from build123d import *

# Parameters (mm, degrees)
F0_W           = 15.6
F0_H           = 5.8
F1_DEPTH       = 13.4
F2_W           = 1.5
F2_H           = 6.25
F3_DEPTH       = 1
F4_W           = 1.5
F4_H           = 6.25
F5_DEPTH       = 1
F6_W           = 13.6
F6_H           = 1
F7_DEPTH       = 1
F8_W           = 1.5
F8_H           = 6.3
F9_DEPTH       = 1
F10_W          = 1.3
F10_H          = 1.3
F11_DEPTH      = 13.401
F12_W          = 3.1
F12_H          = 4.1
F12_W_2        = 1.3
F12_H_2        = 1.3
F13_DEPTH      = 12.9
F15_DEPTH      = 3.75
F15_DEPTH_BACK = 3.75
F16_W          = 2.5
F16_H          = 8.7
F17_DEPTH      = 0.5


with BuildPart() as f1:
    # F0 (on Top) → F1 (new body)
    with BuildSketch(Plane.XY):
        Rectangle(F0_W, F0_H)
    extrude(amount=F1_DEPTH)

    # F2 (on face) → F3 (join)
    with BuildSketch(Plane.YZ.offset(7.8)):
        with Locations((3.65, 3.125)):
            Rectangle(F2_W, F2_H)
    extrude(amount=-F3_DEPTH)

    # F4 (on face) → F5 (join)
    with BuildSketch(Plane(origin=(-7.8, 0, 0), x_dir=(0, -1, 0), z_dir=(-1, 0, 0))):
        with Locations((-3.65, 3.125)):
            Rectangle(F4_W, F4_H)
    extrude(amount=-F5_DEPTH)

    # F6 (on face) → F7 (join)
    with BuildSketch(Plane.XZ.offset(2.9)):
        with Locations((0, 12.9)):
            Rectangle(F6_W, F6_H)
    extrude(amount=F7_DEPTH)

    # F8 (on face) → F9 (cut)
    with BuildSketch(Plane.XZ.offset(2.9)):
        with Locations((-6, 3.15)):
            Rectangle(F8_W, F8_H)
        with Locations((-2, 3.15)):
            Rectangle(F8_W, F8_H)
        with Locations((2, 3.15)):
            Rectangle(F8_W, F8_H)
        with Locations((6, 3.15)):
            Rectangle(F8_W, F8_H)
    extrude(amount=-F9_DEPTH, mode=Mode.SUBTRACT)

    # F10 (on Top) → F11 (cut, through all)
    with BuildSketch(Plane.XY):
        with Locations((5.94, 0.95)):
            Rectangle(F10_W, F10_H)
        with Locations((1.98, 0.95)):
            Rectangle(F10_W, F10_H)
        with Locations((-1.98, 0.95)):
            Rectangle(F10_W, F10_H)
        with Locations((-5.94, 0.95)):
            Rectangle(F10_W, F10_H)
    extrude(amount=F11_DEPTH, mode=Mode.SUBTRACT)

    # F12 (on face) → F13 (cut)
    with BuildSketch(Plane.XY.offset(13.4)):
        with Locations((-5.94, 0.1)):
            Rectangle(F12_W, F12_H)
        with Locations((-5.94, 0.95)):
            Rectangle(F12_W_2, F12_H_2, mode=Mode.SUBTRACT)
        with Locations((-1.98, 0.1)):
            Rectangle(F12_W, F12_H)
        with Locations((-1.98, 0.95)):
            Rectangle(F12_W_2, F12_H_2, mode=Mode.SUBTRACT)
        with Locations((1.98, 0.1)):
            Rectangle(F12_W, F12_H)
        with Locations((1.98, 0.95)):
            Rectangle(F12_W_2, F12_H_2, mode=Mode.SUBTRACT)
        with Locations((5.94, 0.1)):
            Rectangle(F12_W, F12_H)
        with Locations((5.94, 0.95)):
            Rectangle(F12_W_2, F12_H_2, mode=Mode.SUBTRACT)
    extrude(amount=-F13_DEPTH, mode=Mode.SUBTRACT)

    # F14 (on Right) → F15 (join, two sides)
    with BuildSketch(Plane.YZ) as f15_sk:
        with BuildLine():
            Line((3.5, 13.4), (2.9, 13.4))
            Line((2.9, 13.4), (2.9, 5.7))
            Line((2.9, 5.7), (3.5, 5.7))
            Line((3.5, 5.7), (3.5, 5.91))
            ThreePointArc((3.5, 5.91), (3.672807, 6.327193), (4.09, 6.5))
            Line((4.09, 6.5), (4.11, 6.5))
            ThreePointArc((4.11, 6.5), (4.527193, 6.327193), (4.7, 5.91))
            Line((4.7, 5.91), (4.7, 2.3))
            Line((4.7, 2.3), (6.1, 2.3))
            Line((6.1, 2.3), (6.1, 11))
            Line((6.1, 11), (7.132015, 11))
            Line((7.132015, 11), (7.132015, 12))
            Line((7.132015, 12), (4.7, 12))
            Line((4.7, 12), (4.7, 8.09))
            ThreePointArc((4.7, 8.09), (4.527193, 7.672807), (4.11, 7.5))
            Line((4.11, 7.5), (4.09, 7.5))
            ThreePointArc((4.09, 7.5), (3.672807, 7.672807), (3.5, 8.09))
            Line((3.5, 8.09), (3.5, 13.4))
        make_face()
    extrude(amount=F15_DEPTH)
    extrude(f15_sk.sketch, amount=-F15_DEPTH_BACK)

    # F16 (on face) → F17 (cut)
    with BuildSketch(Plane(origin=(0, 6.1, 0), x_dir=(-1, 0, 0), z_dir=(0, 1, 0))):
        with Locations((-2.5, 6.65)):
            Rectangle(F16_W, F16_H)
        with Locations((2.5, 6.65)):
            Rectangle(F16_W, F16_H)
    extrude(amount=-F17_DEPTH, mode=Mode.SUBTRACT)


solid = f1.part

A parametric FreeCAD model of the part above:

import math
import FreeCAD as App
import Part
import Sketcher

V = App.Vector
Q = App.Units.Quantity

doc = App.newDocument("Part")
params = doc.addObject("Spreadsheet::Sheet", "Params")
for row, (alias, value) in enumerate([
    ("sketch1_width", "15.6 mm"),
    ("sketch1_height", "5.8 mm"),
    ("pad1_length", "13.4 mm"),
    ("sketch2_width", "1.5 mm"),
    ("sketch2_height", "6.25 mm"),
    ("pad2_length", "1 mm"),
    ("sketch3_width", "1.5 mm"),
    ("sketch3_height", "6.25 mm"),
    ("pad3_length", "1 mm"),
    ("sketch4_height", "1 mm"),
    ("sketch4_width", "13.6 mm"),
    ("pad4_length", "1 mm"),
    ("sketch5_width", "1.5 mm"),
    ("sketch5_height", "6.3 mm"),
    ("pocket1_length", "1 mm"),
    ("sketch6_width", "1.3 mm"),
    ("sketch7_width", "3.1 mm"),
    ("sketch7_width2", "1.3 mm"),
    ("sketch7_height", "4.1 mm"),
    ("pocket3_length", "12.9 mm"),
    ("sketch8_height", "1 mm"),
    ("sketch8_radius", "0.59 mm"),
    ("sketch8_width", "0.6 mm"),
    ("sketch8_width2", "1.4 mm"),
    ("sketch8_height2", "7.7 mm"),
    ("pad5_length", "3.75 mm"),
    ("pad5_length2", "3.75 mm"),
    ("sketch9_width", "2.5 mm"),
    ("sketch9_height", "8.7 mm"),
    ("pocket4_length", "0.5 mm"),
], start=1):
    params.set(f"A{row}", alias)
    params.set(f"B{row}", "=" + value)
    params.setAlias(f"B{row}", alias)

body = doc.addObject("PartDesign::Body", "Body")

# Sketch on XY plane
sketch1 = body.newObject("Sketcher::SketchObject", "Sketch")
sketch1.AttachmentSupport = (doc.getObject("XY_Plane"), [""])
sketch1.MapMode = "FlatFace"
sketch1.addGeometry(Part.LineSegment(V(-7.8, 2.9, 0), V(-7.8, -2.9, 0)), False)
sketch1.addGeometry(Part.LineSegment(V(-7.8, -2.9, 0), V(7.8, -2.9, 0)), False)
sketch1.addGeometry(Part.LineSegment(V(7.8, -2.9, 0), V(7.8, 2.9, 0)), False)
sketch1.addGeometry(Part.LineSegment(V(7.8, 2.9, 0), V(-7.8, 2.9, 0)), False)
sketch1.addConstraint(Sketcher.Constraint("Coincident", 0, 2, 1, 1))
sketch1.addConstraint(Sketcher.Constraint("Coincident", 1, 2, 2, 1))
sketch1.addConstraint(Sketcher.Constraint("Coincident", 2, 2, 3, 1))
sketch1.addConstraint(Sketcher.Constraint("Coincident", 3, 2, 0, 1))
sketch1.addConstraint(Sketcher.Constraint("Vertical", 0))
sketch1.addConstraint(Sketcher.Constraint("Horizontal", 1))
sketch1.addConstraint(Sketcher.Constraint("Vertical", 2))
sketch1.addConstraint(Sketcher.Constraint("Horizontal", 3))
sketch1.addConstraint(Sketcher.Constraint("Symmetric", 0, 2, 2, 2, -1, 1))
sketch1.addConstraint(Sketcher.Constraint("DistanceX", 1, 1, 1, 2, Q("15.6 mm")))
sketch1.addConstraint(Sketcher.Constraint("DistanceY", 0, 2, 0, 1, Q("5.8 mm")))
sketch1.setExpression("Constraints[9]", "Params.sketch1_width")
sketch1.setExpression("Constraints[10]", "Params.sketch1_height")
pad1 = body.newObject("PartDesign::Pad", "Pad")
pad1.Profile = sketch1
pad1.setExpression("Length", "Params.pad1_length")

# Sketch on YZ plane
sketch2 = body.newObject("Sketcher::SketchObject", "Sketch001")
sketch2.AttachmentSupport = (doc.getObject("YZ_Plane"), [""])
sketch2.MapMode = "FlatFace"
sketch2.AttachmentOffset = App.Placement(V(0, 0, 7.8), App.Rotation())
sketch2.addGeometry(Part.LineSegment(V(2.9, 6.25, 0), V(2.9, 0, 0)), False)
sketch2.addGeometry(Part.LineSegment(V(2.9, 0, 0), V(4.4, 0, 0)), False)
sketch2.addGeometry(Part.LineSegment(V(4.4, 0, 0), V(4.4, 6.25, 0)), False)
sketch2.addGeometry(Part.LineSegment(V(4.4, 6.25, 0), V(2.9, 6.25, 0)), False)
sketch2.addConstraint(Sketcher.Constraint("Coincident", 0, 2, 1, 1))
sketch2.addConstraint(Sketcher.Constraint("Coincident", 1, 2, 2, 1))
sketch2.addConstraint(Sketcher.Constraint("Coincident", 2, 2, 3, 1))
sketch2.addConstraint(Sketcher.Constraint("Coincident", 3, 2, 0, 1))
sketch2.addConstraint(Sketcher.Constraint("Vertical", 0))
sketch2.addConstraint(Sketcher.Constraint("Horizontal", 1))
sketch2.addConstraint(Sketcher.Constraint("Vertical", 2))
sketch2.addConstraint(Sketcher.Constraint("Horizontal", 3))
sketch2.addConstraint(Sketcher.Constraint("PointOnObject", 0, 2, -1))
sketch2.addConstraint(Sketcher.Constraint("DistanceX", 1, 1, 1, 2, Q("1.5 mm")))
sketch2.addConstraint(Sketcher.Constraint("DistanceY", 0, 2, 0, 1, Q("6.25 mm")))
sketch2.addConstraint(Sketcher.Constraint("DistanceX", -1, 1, 0, 2, Q("2.9 mm")))
sketch2.setExpression("Constraints[9]", "Params.sketch2_width")
sketch2.setExpression("Constraints[10]", "Params.sketch2_height")
pad2 = body.newObject("PartDesign::Pad", "Pad001")
pad2.Profile = sketch2
pad2.setExpression("Length", "Params.pad2_length")
pad2.Reversed = True

# Sketch on YZ plane
sketch3 = body.newObject("Sketcher::SketchObject", "Sketch002")
sketch3.AttachmentSupport = (doc.getObject("YZ_Plane"), [""])
sketch3.MapMode = "FlatFace"
sketch3.AttachmentOffset = App.Placement(V(0, 0, -7.8), App.Rotation())
sketch3.addGeometry(Part.LineSegment(V(4.4, 6.25, 0), V(4.4, 0, 0)), False)
sketch3.addGeometry(Part.LineSegment(V(4.4, 0, 0), V(2.9, 0, 0)), False)
sketch3.addGeometry(Part.LineSegment(V(2.9, 0, 0), V(2.9, 6.25, 0)), False)
sketch3.addGeometry(Part.LineSegment(V(2.9, 6.25, 0), V(4.4, 6.25, 0)), False)
sketch3.addConstraint(Sketcher.Constraint("Coincident", 0, 2, 1, 1))
sketch3.addConstraint(Sketcher.Constraint("Coincident", 1, 2, 2, 1))
sketch3.addConstraint(Sketcher.Constraint("Coincident", 2, 2, 3, 1))
sketch3.addConstraint(Sketcher.Constraint("Coincident", 3, 2, 0, 1))
sketch3.addConstraint(Sketcher.Constraint("Vertical", 0))
sketch3.addConstraint(Sketcher.Constraint("Horizontal", 1))
sketch3.addConstraint(Sketcher.Constraint("Vertical", 2))
sketch3.addConstraint(Sketcher.Constraint("Horizontal", 3))
sketch3.addConstraint(Sketcher.Constraint("PointOnObject", 0, 2, -1))
sketch3.addConstraint(Sketcher.Constraint("DistanceX", 1, 2, 1, 1, Q("1.5 mm")))
sketch3.addConstraint(Sketcher.Constraint("DistanceY", 0, 2, 0, 1, Q("6.25 mm")))
sketch3.addConstraint(Sketcher.Constraint("DistanceX", -1, 1, 0, 2, Q("4.4 mm")))
sketch3.setExpression("Constraints[9]", "Params.sketch3_width")
sketch3.setExpression("Constraints[10]", "Params.sketch3_height")
pad3 = body.newObject("PartDesign::Pad", "Pad002")
pad3.Profile = sketch3
pad3.setExpression("Length", "Params.pad3_length")

# Sketch on XZ plane
sketch4 = body.newObject("Sketcher::SketchObject", "Sketch003")
sketch4.AttachmentSupport = (doc.getObject("XZ_Plane"), [""])
sketch4.MapMode = "FlatFace"
sketch4.AttachmentOffset = App.Placement(V(0, 0, 2.9), App.Rotation())
sketch4.addGeometry(Part.LineSegment(V(-6.8, 13.4, 0), V(-6.8, 12.4, 0)), False)
sketch4.addGeometry(Part.LineSegment(V(-6.8, 12.4, 0), V(6.8, 12.4, 0)), False)
sketch4.addGeometry(Part.LineSegment(V(6.8, 12.4, 0), V(6.8, 13.4, 0)), False)
sketch4.addGeometry(Part.LineSegment(V(6.8, 13.4, 0), V(-6.8, 13.4, 0)), False)
sketch4.addConstraint(Sketcher.Constraint("Coincident", 0, 2, 1, 1))
sketch4.addConstraint(Sketcher.Constraint("Coincident", 1, 2, 2, 1))
sketch4.addConstraint(Sketcher.Constraint("Coincident", 2, 2, 3, 1))
sketch4.addConstraint(Sketcher.Constraint("Coincident", 3, 2, 0, 1))
sketch4.addConstraint(Sketcher.Constraint("Vertical", 0))
sketch4.addConstraint(Sketcher.Constraint("Horizontal", 1))
sketch4.addConstraint(Sketcher.Constraint("Vertical", 2))
sketch4.addConstraint(Sketcher.Constraint("Horizontal", 3))
sketch4.addConstraint(Sketcher.Constraint("DistanceY", 0, 2, 0, 1, Q("1 mm")))
sketch4.addConstraint(Sketcher.Constraint("DistanceX", 1, 1, 1, 2, Q("13.6 mm")))
sketch4.addConstraint(Sketcher.Constraint("DistanceX", 0, 2, -1, 1, Q("6.8 mm")))
sketch4.addConstraint(Sketcher.Constraint("DistanceY", -1, 1, 0, 2, Q("12.4 mm")))
sketch4.setExpression("Constraints[8]", "Params.sketch4_height")
sketch4.setExpression("Constraints[9]", "Params.sketch4_width")
pad4 = body.newObject("PartDesign::Pad", "Pad003")
pad4.Profile = sketch4
pad4.setExpression("Length", "Params.pad4_length")

# Sketch on XZ plane
sketch5 = body.newObject("Sketcher::SketchObject", "Sketch004")
sketch5.AttachmentSupport = (doc.getObject("XZ_Plane"), [""])
sketch5.MapMode = "FlatFace"
sketch5.AttachmentOffset = App.Placement(V(0, 0, 2.9), App.Rotation())
sketch5.addGeometry(Part.LineSegment(V(-6.75, 6.3, 0), V(-6.75, 0, 0)), False)
sketch5.addGeometry(Part.LineSegment(V(-6.75, 0, 0), V(-5.25, 0, 0)), False)
sketch5.addGeometry(Part.LineSegment(V(-5.25, 0, 0), V(-5.25, 6.3, 0)), False)
sketch5.addGeometry(Part.LineSegment(V(-5.25, 6.3, 0), V(-6.75, 6.3, 0)), False)
sketch5.addGeometry(Part.LineSegment(V(-2.75, 6.3, 0), V(-2.75, 0, 0)), False)
sketch5.addGeometry(Part.LineSegment(V(-2.75, 0, 0), V(-1.25, 0, 0)), False)
sketch5.addGeometry(Part.LineSegment(V(-1.25, 0, 0), V(-1.25, 6.3, 0)), False)
sketch5.addGeometry(Part.LineSegment(V(-1.25, 6.3, 0), V(-2.75, 6.3, 0)), False)
sketch5.addGeometry(Part.LineSegment(V(1.25, 6.3, 0), V(1.25, 0, 0)), False)
sketch5.addGeometry(Part.LineSegment(V(1.25, 0, 0), V(2.75, 0, 0)), False)
sketch5.addGeometry(Part.LineSegment(V(2.75, 0, 0), V(2.75, 6.3, 0)), False)
sketch5.addGeometry(Part.LineSegment(V(2.75, 6.3, 0), V(1.25, 6.3, 0)), False)
sketch5.addGeometry(Part.LineSegment(V(5.25, 6.3, 0), V(5.25, 0, 0)), False)
sketch5.addGeometry(Part.LineSegment(V(5.25, 0, 0), V(6.75, 0, 0)), False)
sketch5.addGeometry(Part.LineSegment(V(6.75, 0, 0), V(6.75, 6.3, 0)), False)
sketch5.addGeometry(Part.LineSegment(V(6.75, 6.3, 0), V(5.25, 6.3, 0)), False)
sketch5.addConstraint(Sketcher.Constraint("Coincident", 0, 2, 1, 1))
sketch5.addConstraint(Sketcher.Constraint("Coincident", 1, 2, 2, 1))
sketch5.addConstraint(Sketcher.Constraint("Coincident", 2, 2, 3, 1))
sketch5.addConstraint(Sketcher.Constraint("Coincident", 3, 2, 0, 1))
sketch5.addConstraint(Sketcher.Constraint("Coincident", 4, 2, 5, 1))
sketch5.addConstraint(Sketcher.Constraint("Coincident", 5, 2, 6, 1))
sketch5.addConstraint(Sketcher.Constraint("Coincident", 6, 2, 7, 1))
sketch5.addConstraint(Sketcher.Constraint("Coincident", 7, 2, 4, 1))
sketch5.addConstraint(Sketcher.Constraint("Coincident", 8, 2, 9, 1))
sketch5.addConstraint(Sketcher.Constraint("Coincident", 9, 2, 10, 1))
sketch5.addConstraint(Sketcher.Constraint("Coincident", 10, 2, 11, 1))
sketch5.addConstraint(Sketcher.Constraint("Coincident", 11, 2, 8, 1))
sketch5.addConstraint(Sketcher.Constraint("Coincident", 12, 2, 13, 1))
sketch5.addConstraint(Sketcher.Constraint("Coincident", 13, 2, 14, 1))
sketch5.addConstraint(Sketcher.Constraint("Coincident", 14, 2, 15, 1))
sketch5.addConstraint(Sketcher.Constraint("Coincident", 15, 2, 12, 1))
sketch5.addConstraint(Sketcher.Constraint("Vertical", 0))
sketch5.addConstraint(Sketcher.Constraint("Horizontal", 1))
sketch5.addConstraint(Sketcher.Constraint("Vertical", 2))
sketch5.addConstraint(Sketcher.Constraint("Horizontal", 3))
sketch5.addConstraint(Sketcher.Constraint("Vertical", 4))
sketch5.addConstraint(Sketcher.Constraint("Horizontal", 5))
sketch5.addConstraint(Sketcher.Constraint("Vertical", 6))
sketch5.addConstraint(Sketcher.Constraint("Horizontal", 7))
sketch5.addConstraint(Sketcher.Constraint("Vertical", 8))
sketch5.addConstraint(Sketcher.Constraint("Horizontal", 9))
sketch5.addConstraint(Sketcher.Constraint("Vertical", 10))
sketch5.addConstraint(Sketcher.Constraint("Horizontal", 11))
sketch5.addConstraint(Sketcher.Constraint("Vertical", 12))
sketch5.addConstraint(Sketcher.Constraint("Horizontal", 13))
sketch5.addConstraint(Sketcher.Constraint("Vertical", 14))
sketch5.addConstraint(Sketcher.Constraint("Horizontal", 15))
sketch5.addConstraint(Sketcher.Constraint("Symmetric", 5, 2, 8, 2, -1, 1))
sketch5.addConstraint(Sketcher.Constraint("Symmetric", 1, 2, 12, 2, -1, 1))
sketch5.addConstraint(Sketcher.Constraint("Symmetric", 4, 2, 9, 2, -2))
sketch5.addConstraint(Sketcher.Constraint("Symmetric", 0, 2, 13, 2, -2))
sketch5.addConstraint(Sketcher.Constraint("Horizontal", 3, 2, 6, 2))
sketch5.addConstraint(Sketcher.Constraint("Horizontal", 7, 2, 10, 2))
sketch5.addConstraint(Sketcher.Constraint("Horizontal", 11, 2, 14, 2))
sketch5.addConstraint(Sketcher.Constraint("Equal", 3, 5))
sketch5.addConstraint(Sketcher.Constraint("DistanceX", 1, 1, 1, 2, Q("1.5 mm")))
sketch5.addConstraint(Sketcher.Constraint("DistanceY", 0, 2, 0, 1, Q("6.3 mm")))
sketch5.addConstraint(Sketcher.Constraint("DistanceX", 0, 2, 4, 2, Q("4 mm")))
sketch5.addConstraint(Sketcher.Constraint("DistanceX", 4, 2, 8, 2, Q("4 mm")))
sketch5.setExpression("Constraints[40]", "Params.sketch5_width")
sketch5.setExpression("Constraints[41]", "Params.sketch5_height")
pocket1 = body.newObject("PartDesign::Pocket", "Pocket")
pocket1.Profile = sketch5
pocket1.setExpression("Length", "Params.pocket1_length")

# Sketch on XY plane
sketch6 = body.newObject("Sketcher::SketchObject", "Sketch005")
sketch6.AttachmentSupport = (doc.getObject("XY_Plane"), [""])
sketch6.MapMode = "FlatFace"
sketch6.addGeometry(Part.LineSegment(V(5.29, 1.6, 0), V(5.29, 0.3, 0)), False)
sketch6.addGeometry(Part.LineSegment(V(5.29, 0.3, 0), V(6.59, 0.3, 0)), False)
sketch6.addGeometry(Part.LineSegment(V(6.59, 0.3, 0), V(6.59, 1.6, 0)), False)
sketch6.addGeometry(Part.LineSegment(V(6.59, 1.6, 0), V(5.29, 1.6, 0)), False)
sketch6.addGeometry(Part.LineSegment(V(1.33, 1.6, 0), V(1.33, 0.3, 0)), False)
sketch6.addGeometry(Part.LineSegment(V(1.33, 0.3, 0), V(2.63, 0.3, 0)), False)
sketch6.addGeometry(Part.LineSegment(V(2.63, 0.3, 0), V(2.63, 1.6, 0)), False)
sketch6.addGeometry(Part.LineSegment(V(2.63, 1.6, 0), V(1.33, 1.6, 0)), False)
sketch6.addGeometry(Part.LineSegment(V(-2.63, 1.6, 0), V(-2.63, 0.3, 0)), False)
sketch6.addGeometry(Part.LineSegment(V(-2.63, 0.3, 0), V(-1.33, 0.3, 0)), False)
sketch6.addGeometry(Part.LineSegment(V(-1.33, 0.3, 0), V(-1.33, 1.6, 0)), False)
sketch6.addGeometry(Part.LineSegment(V(-1.33, 1.6, 0), V(-2.63, 1.6, 0)), False)
sketch6.addGeometry(Part.LineSegment(V(-6.59, 1.6, 0), V(-6.59, 0.3, 0)), False)
sketch6.addGeometry(Part.LineSegment(V(-6.59, 0.3, 0), V(-5.29, 0.3, 0)), False)
sketch6.addGeometry(Part.LineSegment(V(-5.29, 0.3, 0), V(-5.29, 1.6, 0)), False)
sketch6.addGeometry(Part.LineSegment(V(-5.29, 1.6, 0), V(-6.59, 1.6, 0)), False)
sketch6.addConstraint(Sketcher.Constraint("Coincident", 0, 2, 1, 1))
sketch6.addConstraint(Sketcher.Constraint("Coincident", 1, 2, 2, 1))
sketch6.addConstraint(Sketcher.Constraint("Coincident", 2, 2, 3, 1))
sketch6.addConstraint(Sketcher.Constraint("Coincident", 3, 2, 0, 1))
sketch6.addConstraint(Sketcher.Constraint("Coincident", 4, 2, 5, 1))
sketch6.addConstraint(Sketcher.Constraint("Coincident", 5, 2, 6, 1))
sketch6.addConstraint(Sketcher.Constraint("Coincident", 6, 2, 7, 1))
sketch6.addConstraint(Sketcher.Constraint("Coincident", 7, 2, 4, 1))
sketch6.addConstraint(Sketcher.Constraint("Coincident", 8, 2, 9, 1))
sketch6.addConstraint(Sketcher.Constraint("Coincident", 9, 2, 10, 1))
sketch6.addConstraint(Sketcher.Constraint("Coincident", 10, 2, 11, 1))
sketch6.addConstraint(Sketcher.Constraint("Coincident", 11, 2, 8, 1))
sketch6.addConstraint(Sketcher.Constraint("Coincident", 12, 2, 13, 1))
sketch6.addConstraint(Sketcher.Constraint("Coincident", 13, 2, 14, 1))
sketch6.addConstraint(Sketcher.Constraint("Coincident", 14, 2, 15, 1))
sketch6.addConstraint(Sketcher.Constraint("Coincident", 15, 2, 12, 1))
sketch6.addConstraint(Sketcher.Constraint("Vertical", 0))
sketch6.addConstraint(Sketcher.Constraint("Horizontal", 1))
sketch6.addConstraint(Sketcher.Constraint("Vertical", 2))
sketch6.addConstraint(Sketcher.Constraint("Horizontal", 3))
sketch6.addConstraint(Sketcher.Constraint("Vertical", 4))
sketch6.addConstraint(Sketcher.Constraint("Horizontal", 5))
sketch6.addConstraint(Sketcher.Constraint("Vertical", 6))
sketch6.addConstraint(Sketcher.Constraint("Horizontal", 7))
sketch6.addConstraint(Sketcher.Constraint("Vertical", 8))
sketch6.addConstraint(Sketcher.Constraint("Horizontal", 9))
sketch6.addConstraint(Sketcher.Constraint("Vertical", 10))
sketch6.addConstraint(Sketcher.Constraint("Horizontal", 11))
sketch6.addConstraint(Sketcher.Constraint("Vertical", 12))
sketch6.addConstraint(Sketcher.Constraint("Horizontal", 13))
sketch6.addConstraint(Sketcher.Constraint("Vertical", 14))
sketch6.addConstraint(Sketcher.Constraint("Horizontal", 15))
sketch6.addConstraint(Sketcher.Constraint("Symmetric", 5, 2, 8, 2, -2))
sketch6.addConstraint(Sketcher.Constraint("Symmetric", 7, 2, 10, 2, -2))
sketch6.addConstraint(Sketcher.Constraint("Symmetric", 1, 2, 12, 2, -2))
sketch6.addConstraint(Sketcher.Constraint("Symmetric", 3, 2, 14, 2, -2))
sketch6.addConstraint(Sketcher.Constraint("Horizontal", 1, 2, 4, 2))
sketch6.addConstraint(Sketcher.Constraint("Horizontal", 3, 2, 6, 2))
sketch6.addConstraint(Sketcher.Constraint("Equal", 3, 5))
sketch6.addConstraint(Sketcher.Constraint("Equal", 15, 0))
sketch6.addConstraint(Sketcher.Constraint("DistanceX", 1, 1, 1, 2, Q("1.3 mm")))
sketch6.addConstraint(Sketcher.Constraint("DistanceY", -1, 1, 0, 2, Q("0.3 mm")))
sketch6.addConstraint(Sketcher.Constraint("DistanceX", -1, 1, 0, 2, Q("5.29 mm")))
sketch6.addConstraint(Sketcher.Constraint("DistanceX", -1, 1, 4, 2, Q("1.33 mm")))
sketch6.setExpression("Constraints[40]", "Params.sketch6_width")
pocket2 = body.newObject("PartDesign::Pocket", "Pocket001")
pocket2.Profile = sketch6
pocket2.Type = "ThroughAll"
pocket2.Reversed = True

# Sketch on XY plane
sketch7 = body.newObject("Sketcher::SketchObject", "Sketch006")
sketch7.AttachmentSupport = (doc.getObject("XY_Plane"), [""])
sketch7.MapMode = "FlatFace"
sketch7.AttachmentOffset = App.Placement(V(0, 0, 13.4), App.Rotation())
sketch7.addGeometry(Part.LineSegment(V(-7.49, 2.15, 0), V(-7.49, -1.95, 0)), False)
sketch7.addGeometry(Part.LineSegment(V(-7.49, -1.95, 0), V(-4.39, -1.95, 0)), False)
sketch7.addGeometry(Part.LineSegment(V(-4.39, -1.95, 0), V(-4.39, 2.15, 0)), False)
sketch7.addGeometry(Part.LineSegment(V(-4.39, 2.15, 0), V(-7.49, 2.15, 0)), False)
sketch7.addGeometry(Part.LineSegment(V(-5.29, 0.3, 0), V(-6.59, 0.3, 0)), False)
sketch7.addGeometry(Part.LineSegment(V(-6.59, 0.3, 0), V(-6.59, 1.6, 0)), False)
sketch7.addGeometry(Part.LineSegment(V(-6.59, 1.6, 0), V(-5.29, 1.6, 0)), False)
sketch7.addGeometry(Part.LineSegment(V(-5.29, 1.6, 0), V(-5.29, 0.3, 0)), False)
sketch7.addGeometry(Part.LineSegment(V(-3.53, 2.15, 0), V(-3.53, -1.95, 0)), False)
sketch7.addGeometry(Part.LineSegment(V(-3.53, -1.95, 0), V(-0.43, -1.95, 0)), False)
sketch7.addGeometry(Part.LineSegment(V(-0.43, -1.95, 0), V(-0.43, 2.15, 0)), False)
sketch7.addGeometry(Part.LineSegment(V(-0.43, 2.15, 0), V(-3.53, 2.15, 0)), False)
sketch7.addGeometry(Part.LineSegment(V(-1.33, 0.3, 0), V(-2.63, 0.3, 0)), False)
sketch7.addGeometry(Part.LineSegment(V(-2.63, 0.3, 0), V(-2.63, 1.6, 0)), False)
sketch7.addGeometry(Part.LineSegment(V(-2.63, 1.6, 0), V(-1.33, 1.6, 0)), False)
sketch7.addGeometry(Part.LineSegment(V(-1.33, 1.6, 0), V(-1.33, 0.3, 0)), False)
sketch7.addGeometry(Part.LineSegment(V(0.43, 2.15, 0), V(0.43, -1.95, 0)), False)
sketch7.addGeometry(Part.LineSegment(V(0.43, -1.95, 0), V(3.53, -1.95, 0)), False)
sketch7.addGeometry(Part.LineSegment(V(3.53, -1.95, 0), V(3.53, 2.15, 0)), False)
sketch7.addGeometry(Part.LineSegment(V(3.53, 2.15, 0), V(0.43, 2.15, 0)), False)
sketch7.addGeometry(Part.LineSegment(V(2.63, 0.3, 0), V(1.33, 0.3, 0)), False)
sketch7.addGeometry(Part.LineSegment(V(1.33, 0.3, 0), V(1.33, 1.6, 0)), False)
sketch7.addGeometry(Part.LineSegment(V(1.33, 1.6, 0), V(2.63, 1.6, 0)), False)
sketch7.addGeometry(Part.LineSegment(V(2.63, 1.6, 0), V(2.63, 0.3, 0)), False)
sketch7.addGeometry(Part.LineSegment(V(4.39, 2.15, 0), V(4.39, -1.95, 0)), False)
sketch7.addGeometry(Part.LineSegment(V(4.39, -1.95, 0), V(7.49, -1.95, 0)), False)
sketch7.addGeometry(Part.LineSegment(V(7.49, -1.95, 0), V(7.49, 2.15, 0)), False)
sketch7.addGeometry(Part.LineSegment(V(7.49, 2.15, 0), V(4.39, 2.15, 0)), False)
sketch7.addGeometry(Part.LineSegment(V(6.59, 0.3, 0), V(5.29, 0.3, 0)), False)
sketch7.addGeometry(Part.LineSegment(V(5.29, 0.3, 0), V(5.29, 1.6, 0)), False)
sketch7.addGeometry(Part.LineSegment(V(5.29, 1.6, 0), V(6.59, 1.6, 0)), False)
sketch7.addGeometry(Part.LineSegment(V(6.59, 1.6, 0), V(6.59, 0.3, 0)), False)
sketch7.addConstraint(Sketcher.Constraint("Coincident", 0, 2, 1, 1))
sketch7.addConstraint(Sketcher.Constraint("Coincident", 1, 2, 2, 1))
sketch7.addConstraint(Sketcher.Constraint("Coincident", 2, 2, 3, 1))
sketch7.addConstraint(Sketcher.Constraint("Coincident", 3, 2, 0, 1))
sketch7.addConstraint(Sketcher.Constraint("Coincident", 4, 2, 5, 1))
sketch7.addConstraint(Sketcher.Constraint("Coincident", 5, 2, 6, 1))
sketch7.addConstraint(Sketcher.Constraint("Coincident", 6, 2, 7, 1))
sketch7.addConstraint(Sketcher.Constraint("Coincident", 7, 2, 4, 1))
sketch7.addConstraint(Sketcher.Constraint("Coincident", 8, 2, 9, 1))
sketch7.addConstraint(Sketcher.Constraint("Coincident", 9, 2, 10, 1))
sketch7.addConstraint(Sketcher.Constraint("Coincident", 10, 2, 11, 1))
sketch7.addConstraint(Sketcher.Constraint("Coincident", 11, 2, 8, 1))
sketch7.addConstraint(Sketcher.Constraint("Coincident", 12, 2, 13, 1))
sketch7.addConstraint(Sketcher.Constraint("Coincident", 13, 2, 14, 1))
sketch7.addConstraint(Sketcher.Constraint("Coincident", 14, 2, 15, 1))
sketch7.addConstraint(Sketcher.Constraint("Coincident", 15, 2, 12, 1))
sketch7.addConstraint(Sketcher.Constraint("Coincident", 16, 2, 17, 1))
sketch7.addConstraint(Sketcher.Constraint("Coincident", 17, 2, 18, 1))
sketch7.addConstraint(Sketcher.Constraint("Coincident", 18, 2, 19, 1))
sketch7.addConstraint(Sketcher.Constraint("Coincident", 19, 2, 16, 1))
sketch7.addConstraint(Sketcher.Constraint("Coincident", 20, 2, 21, 1))
sketch7.addConstraint(Sketcher.Constraint("Coincident", 21, 2, 22, 1))
sketch7.addConstraint(Sketcher.Constraint("Coincident", 22, 2, 23, 1))
sketch7.addConstraint(Sketcher.Constraint("Coincident", 23, 2, 20, 1))
sketch7.addConstraint(Sketcher.Constraint("Coincident", 24, 2, 25, 1))
sketch7.addConstraint(Sketcher.Constraint("Coincident", 25, 2, 26, 1))
sketch7.addConstraint(Sketcher.Constraint("Coincident", 26, 2, 27, 1))
sketch7.addConstraint(Sketcher.Constraint("Coincident", 27, 2, 24, 1))
sketch7.addConstraint(Sketcher.Constraint("Coincident", 28, 2, 29, 1))
sketch7.addConstraint(Sketcher.Constraint("Coincident", 29, 2, 30, 1))
sketch7.addConstraint(Sketcher.Constraint("Coincident", 30, 2, 31, 1))
sketch7.addConstraint(Sketcher.Constraint("Coincident", 31, 2, 28, 1))
sketch7.addConstraint(Sketcher.Constraint("Vertical", 0))
sketch7.addConstraint(Sketcher.Constraint("Horizontal", 1))
sketch7.addConstraint(Sketcher.Constraint("Vertical", 2))
sketch7.addConstraint(Sketcher.Constraint("Horizontal", 3))
sketch7.addConstraint(Sketcher.Constraint("Horizontal", 4))
sketch7.addConstraint(Sketcher.Constraint("Vertical", 5))
sketch7.addConstraint(Sketcher.Constraint("Horizontal", 6))
sketch7.addConstraint(Sketcher.Constraint("Vertical", 7))
sketch7.addConstraint(Sketcher.Constraint("Vertical", 8))
sketch7.addConstraint(Sketcher.Constraint("Horizontal", 9))
sketch7.addConstraint(Sketcher.Constraint("Vertical", 10))
sketch7.addConstraint(Sketcher.Constraint("Horizontal", 11))
sketch7.addConstraint(Sketcher.Constraint("Horizontal", 12))
sketch7.addConstraint(Sketcher.Constraint("Vertical", 13))
sketch7.addConstraint(Sketcher.Constraint("Horizontal", 14))
sketch7.addConstraint(Sketcher.Constraint("Vertical", 15))
sketch7.addConstraint(Sketcher.Constraint("Vertical", 16))
sketch7.addConstraint(Sketcher.Constraint("Horizontal", 17))
sketch7.addConstraint(Sketcher.Constraint("Vertical", 18))
sketch7.addConstraint(Sketcher.Constraint("Horizontal", 19))
sketch7.addConstraint(Sketcher.Constraint("Horizontal", 20))
sketch7.addConstraint(Sketcher.Constraint("Vertical", 21))
sketch7.addConstraint(Sketcher.Constraint("Horizontal", 22))
sketch7.addConstraint(Sketcher.Constraint("Vertical", 23))
sketch7.addConstraint(Sketcher.Constraint("Vertical", 24))
sketch7.addConstraint(Sketcher.Constraint("Horizontal", 25))
sketch7.addConstraint(Sketcher.Constraint("Vertical", 26))
sketch7.addConstraint(Sketcher.Constraint("Horizontal", 27))
sketch7.addConstraint(Sketcher.Constraint("Horizontal", 28))
sketch7.addConstraint(Sketcher.Constraint("Vertical", 29))
sketch7.addConstraint(Sketcher.Constraint("Horizontal", 30))
sketch7.addConstraint(Sketcher.Constraint("Vertical", 31))
sketch7.addConstraint(Sketcher.Constraint("Symmetric", 9, 2, 16, 2, -2))
sketch7.addConstraint(Sketcher.Constraint("Symmetric", 11, 2, 18, 2, -2))
sketch7.addConstraint(Sketcher.Constraint("Symmetric", 15, 2, 20, 2, -2))
sketch7.addConstraint(Sketcher.Constraint("Symmetric", 13, 2, 22, 2, -2))
sketch7.addConstraint(Sketcher.Constraint("Symmetric", 1, 2, 24, 2, -2))
sketch7.addConstraint(Sketcher.Constraint("Symmetric", 3, 2, 26, 2, -2))
sketch7.addConstraint(Sketcher.Constraint("Symmetric", 7, 2, 28, 2, -2))
sketch7.addConstraint(Sketcher.Constraint("Symmetric", 5, 2, 30, 2, -2))
sketch7.addConstraint(Sketcher.Constraint("Horizontal", 1, 2, 8, 2))
sketch7.addConstraint(Sketcher.Constraint("Horizontal", 3, 2, 10, 2))
sketch7.addConstraint(Sketcher.Constraint("Horizontal", 7, 2, 12, 2))
sketch7.addConstraint(Sketcher.Constraint("Horizontal", 6, 2, 13, 2))
sketch7.addConstraint(Sketcher.Constraint("Equal", 3, 9))
sketch7.addConstraint(Sketcher.Constraint("Equal", 6, 12))
sketch7.addConstraint(Sketcher.Constraint("Equal", 30, 5))
sketch7.addConstraint(Sketcher.Constraint("DistanceX", 1, 1, 1, 2, Q("3.1 mm")))
sketch7.addConstraint(Sketcher.Constraint("DistanceX", 4, 2, 4, 1, Q("1.3 mm")))
sketch7.addConstraint(Sketcher.Constraint("DistanceY", 0, 2, 0, 1, Q("4.1 mm")))
sketch7.addConstraint(Sketcher.Constraint("DistanceY", -1, 1, 4, 2, Q("0.3 mm")))
sketch7.addConstraint(Sketcher.Constraint("DistanceX", 3, 2, 4, 2, Q("0.9 mm")))
sketch7.addConstraint(Sketcher.Constraint("DistanceX", 11, 2, 12, 2, Q("0.9 mm")))
sketch7.addConstraint(Sketcher.Constraint("DistanceX", 0, 2, -1, 1, Q("7.49 mm")))
sketch7.addConstraint(Sketcher.Constraint("DistanceY", 0, 2, -1, 1, Q("1.95 mm")))
sketch7.addConstraint(Sketcher.Constraint("DistanceX", 8, 2, -1, 1, Q("3.53 mm")))
sketch7.setExpression("Constraints[79]", "Params.sketch7_width")
sketch7.setExpression("Constraints[80]", "Params.sketch7_width2")
sketch7.setExpression("Constraints[81]", "Params.sketch7_height")
pocket3 = body.newObject("PartDesign::Pocket", "Pocket002")
pocket3.Profile = sketch7
pocket3.setExpression("Length", "Params.pocket3_length")

# Sketch on YZ plane
sketch8 = body.newObject("Sketcher::SketchObject", "Sketch007")
sketch8.AttachmentSupport = (doc.getObject("YZ_Plane"), [""])
sketch8.MapMode = "FlatFace"
sketch8.addGeometry(Part.LineSegment(V(3.5, 13.4, 0), V(2.9, 13.4, 0)), False)
sketch8.addGeometry(Part.LineSegment(V(2.9, 13.4, 0), V(2.9, 5.7, 0)), False)
sketch8.addGeometry(Part.LineSegment(V(2.9, 5.7, 0), V(3.5, 5.7, 0)), False)
sketch8.addGeometry(Part.LineSegment(V(3.5, 5.7, 0), V(3.5, 5.91, 0)), False)
sketch8.addGeometry(Part.ArcOfCircle(Part.Circle(V(4.09, 5.91, 0), V(0, 0, 1), 0.59), math.radians(90), math.radians(180)), False)
sketch8.addGeometry(Part.LineSegment(V(4.09, 6.5, 0), V(4.11, 6.5, 0)), False)
sketch8.addGeometry(Part.ArcOfCircle(Part.Circle(V(4.11, 5.91, 0), V(0, 0, 1), 0.59), math.radians(0), math.radians(90)), False)
sketch8.addGeometry(Part.LineSegment(V(4.7, 5.91, 0), V(4.7, 2.3, 0)), False)
sketch8.addGeometry(Part.LineSegment(V(4.7, 2.3, 0), V(6.1, 2.3, 0)), False)
sketch8.addGeometry(Part.LineSegment(V(6.1, 2.3, 0), V(6.1, 11, 0)), False)
sketch8.addGeometry(Part.LineSegment(V(6.1, 11, 0), V(7.132015, 11, 0)), False)
sketch8.addGeometry(Part.LineSegment(V(7.132015, 11, 0), V(7.132015, 12, 0)), False)
sketch8.addGeometry(Part.LineSegment(V(7.132015, 12, 0), V(4.7, 12, 0)), False)
sketch8.addGeometry(Part.LineSegment(V(4.7, 12, 0), V(4.7, 8.09, 0)), False)
sketch8.addGeometry(Part.ArcOfCircle(Part.Circle(V(4.11, 8.09, 0), V(0, 0, 1), 0.59), math.radians(-90), math.radians(0)), False)
sketch8.addGeometry(Part.LineSegment(V(4.11, 7.5, 0), V(4.09, 7.5, 0)), False)
sketch8.addGeometry(Part.ArcOfCircle(Part.Circle(V(4.09, 8.09, 0), V(0, 0, 1), 0.59), math.radians(-180), math.radians(-90)), False)
sketch8.addGeometry(Part.LineSegment(V(3.5, 8.09, 0), V(3.5, 13.4, 0)), False)
sketch8.addConstraint(Sketcher.Constraint("Coincident", 0, 2, 1, 1))
sketch8.addConstraint(Sketcher.Constraint("Coincident", 1, 2, 2, 1))
sketch8.addConstraint(Sketcher.Constraint("Coincident", 2, 2, 3, 1))
sketch8.addConstraint(Sketcher.Constraint("Tangent", 3, 2, 4, 2))
sketch8.addConstraint(Sketcher.Constraint("Tangent", 4, 1, 5, 1))
sketch8.addConstraint(Sketcher.Constraint("Tangent", 5, 2, 6, 2))
sketch8.addConstraint(Sketcher.Constraint("Tangent", 6, 1, 7, 1))
sketch8.addConstraint(Sketcher.Constraint("Coincident", 7, 2, 8, 1))
sketch8.addConstraint(Sketcher.Constraint("Coincident", 8, 2, 9, 1))
sketch8.addConstraint(Sketcher.Constraint("Coincident", 9, 2, 10, 1))
sketch8.addConstraint(Sketcher.Constraint("Coincident", 10, 2, 11, 1))
sketch8.addConstraint(Sketcher.Constraint("Coincident", 11, 2, 12, 1))
sketch8.addConstraint(Sketcher.Constraint("Coincident", 12, 2, 13, 1))
sketch8.addConstraint(Sketcher.Constraint("Tangent", 13, 2, 14, 2))
sketch8.addConstraint(Sketcher.Constraint("Tangent", 14, 1, 15, 1))
sketch8.addConstraint(Sketcher.Constraint("Tangent", 15, 2, 16, 2))
sketch8.addConstraint(Sketcher.Constraint("Tangent", 16, 1, 17, 1))
sketch8.addConstraint(Sketcher.Constraint("Coincident", 17, 2, 0, 1))
sketch8.addConstraint(Sketcher.Constraint("Horizontal", 0))
sketch8.addConstraint(Sketcher.Constraint("Vertical", 1))
sketch8.addConstraint(Sketcher.Constraint("Horizontal", 2))
sketch8.addConstraint(Sketcher.Constraint("Vertical", 3))
sketch8.addConstraint(Sketcher.Constraint("Horizontal", 5))
sketch8.addConstraint(Sketcher.Constraint("Vertical", 7))
sketch8.addConstraint(Sketcher.Constraint("Horizontal", 8))
sketch8.addConstraint(Sketcher.Constraint("Vertical", 9))
sketch8.addConstraint(Sketcher.Constraint("Horizontal", 10))
sketch8.addConstraint(Sketcher.Constraint("Vertical", 11))
sketch8.addConstraint(Sketcher.Constraint("Horizontal", 12))
sketch8.addConstraint(Sketcher.Constraint("Vertical", 13))
sketch8.addConstraint(Sketcher.Constraint("Horizontal", 15))
sketch8.addConstraint(Sketcher.Constraint("Vertical", 17))
sketch8.addConstraint(Sketcher.Constraint("Equal", 4, 6))
sketch8.addConstraint(Sketcher.Constraint("Equal", 6, 14))
sketch8.addConstraint(Sketcher.Constraint("Equal", 14, 16))
sketch8.addConstraint(Sketcher.Constraint("Vertical", 6, 3, 14, 3))
sketch8.addConstraint(Sketcher.Constraint("Vertical", 4, 3, 16, 3))
sketch8.addConstraint(Sketcher.Constraint("DistanceY", 11, 1, 11, 2, Q("1 mm")))
sketch8.addConstraint(Sketcher.Constraint("Radius", 4, Q("0.59 mm")))
sketch8.addConstraint(Sketcher.Constraint("DistanceX", 0, 2, 0, 1, Q("0.6 mm")))
sketch8.addConstraint(Sketcher.Constraint("DistanceX", 8, 1, 8, 2, Q("1.4 mm")))
sketch8.addConstraint(Sketcher.Constraint("DistanceY", 1, 2, 1, 1, Q("7.7 mm")))
sketch8.addConstraint(Sketcher.Constraint("DistanceY", 9, 1, 9, 2, Q("8.7 mm")))
sketch8.addConstraint(Sketcher.Constraint("DistanceY", -1, 1, 9, 2, Q("11 mm")))
sketch8.addConstraint(Sketcher.Constraint("DistanceY", 5, 2, 14, 1, Q("1 mm")))
sketch8.addConstraint(Sketcher.Constraint("DistanceX", 5, 1, 5, 2, Q("0.02 mm")))
sketch8.addConstraint(Sketcher.Constraint("DistanceY", 3, 1, 3, 2, Q("0.21 mm")))
sketch8.addConstraint(Sketcher.Constraint("DistanceY", 7, 2, 7, 1, Q("3.61 mm")))
sketch8.addConstraint(Sketcher.Constraint("DistanceX", -1, 1, 0, 2, Q("2.9 mm")))
sketch8.addConstraint(Sketcher.Constraint("DistanceX", 10, 1, 10, 2, Q("1.032015 mm")))
sketch8.setExpression("Constraints[37]", "Params.sketch8_height")
sketch8.setExpression("Constraints[38]", "Params.sketch8_radius")
sketch8.setExpression("Constraints[39]", "Params.sketch8_width")
sketch8.setExpression("Constraints[40]", "Params.sketch8_width2")
sketch8.setExpression("Constraints[41]", "Params.sketch8_height2")
pad5 = body.newObject("PartDesign::Pad", "Pad004")
pad5.Profile = sketch8
pad5.Type = "TwoLengths"
pad5.setExpression("Length", "Params.pad5_length")
pad5.setExpression("Length2", "Params.pad5_length2")

# Sketch on XZ plane
sketch9 = body.newObject("Sketcher::SketchObject", "Sketch008")
sketch9.AttachmentSupport = (doc.getObject("XZ_Plane"), [""])
sketch9.MapMode = "FlatFace"
sketch9.AttachmentOffset = App.Placement(V(0, 0, -6.1), App.Rotation())
sketch9.addGeometry(Part.LineSegment(V(3.75, 11, 0), V(3.75, 2.3, 0)), False)
sketch9.addGeometry(Part.LineSegment(V(3.75, 2.3, 0), V(1.25, 2.3, 0)), False)
sketch9.addGeometry(Part.LineSegment(V(1.25, 2.3, 0), V(1.25, 11, 0)), False)
sketch9.addGeometry(Part.LineSegment(V(1.25, 11, 0), V(3.75, 11, 0)), False)
sketch9.addGeometry(Part.LineSegment(V(-1.25, 11, 0), V(-1.25, 2.3, 0)), False)
sketch9.addGeometry(Part.LineSegment(V(-1.25, 2.3, 0), V(-3.75, 2.3, 0)), False)
sketch9.addGeometry(Part.LineSegment(V(-3.75, 2.3, 0), V(-3.75, 11, 0)), False)
sketch9.addGeometry(Part.LineSegment(V(-3.75, 11, 0), V(-1.25, 11, 0)), False)
sketch9.addConstraint(Sketcher.Constraint("Coincident", 0, 2, 1, 1))
sketch9.addConstraint(Sketcher.Constraint("Coincident", 1, 2, 2, 1))
sketch9.addConstraint(Sketcher.Constraint("Coincident", 2, 2, 3, 1))
sketch9.addConstraint(Sketcher.Constraint("Coincident", 3, 2, 0, 1))
sketch9.addConstraint(Sketcher.Constraint("Coincident", 4, 2, 5, 1))
sketch9.addConstraint(Sketcher.Constraint("Coincident", 5, 2, 6, 1))
sketch9.addConstraint(Sketcher.Constraint("Coincident", 6, 2, 7, 1))
sketch9.addConstraint(Sketcher.Constraint("Coincident", 7, 2, 4, 1))
sketch9.addConstraint(Sketcher.Constraint("Vertical", 0))
sketch9.addConstraint(Sketcher.Constraint("Horizontal", 1))
sketch9.addConstraint(Sketcher.Constraint("Vertical", 2))
sketch9.addConstraint(Sketcher.Constraint("Horizontal", 3))
sketch9.addConstraint(Sketcher.Constraint("Vertical", 4))
sketch9.addConstraint(Sketcher.Constraint("Horizontal", 5))
sketch9.addConstraint(Sketcher.Constraint("Vertical", 6))
sketch9.addConstraint(Sketcher.Constraint("Horizontal", 7))
sketch9.addConstraint(Sketcher.Constraint("Symmetric", 1, 2, 4, 2, -2))
sketch9.addConstraint(Sketcher.Constraint("Symmetric", 3, 2, 6, 2, -2))
sketch9.addConstraint(Sketcher.Constraint("DistanceX", 1, 2, 1, 1, Q("2.5 mm")))
sketch9.addConstraint(Sketcher.Constraint("DistanceY", 0, 2, 0, 1, Q("8.7 mm")))
sketch9.addConstraint(Sketcher.Constraint("DistanceY", -1, 1, 2, 2, Q("11 mm")))
sketch9.addConstraint(Sketcher.Constraint("DistanceX", 4, 2, 0, 2, Q("5 mm")))
sketch9.setExpression("Constraints[18]", "Params.sketch9_width")
sketch9.setExpression("Constraints[19]", "Params.sketch9_height")
pocket4 = body.newObject("PartDesign::Pocket", "Pocket003")
pocket4.Profile = sketch9
pocket4.setExpression("Length", "Params.pocket4_length")
pocket4.Reversed = True

doc.recompute()
